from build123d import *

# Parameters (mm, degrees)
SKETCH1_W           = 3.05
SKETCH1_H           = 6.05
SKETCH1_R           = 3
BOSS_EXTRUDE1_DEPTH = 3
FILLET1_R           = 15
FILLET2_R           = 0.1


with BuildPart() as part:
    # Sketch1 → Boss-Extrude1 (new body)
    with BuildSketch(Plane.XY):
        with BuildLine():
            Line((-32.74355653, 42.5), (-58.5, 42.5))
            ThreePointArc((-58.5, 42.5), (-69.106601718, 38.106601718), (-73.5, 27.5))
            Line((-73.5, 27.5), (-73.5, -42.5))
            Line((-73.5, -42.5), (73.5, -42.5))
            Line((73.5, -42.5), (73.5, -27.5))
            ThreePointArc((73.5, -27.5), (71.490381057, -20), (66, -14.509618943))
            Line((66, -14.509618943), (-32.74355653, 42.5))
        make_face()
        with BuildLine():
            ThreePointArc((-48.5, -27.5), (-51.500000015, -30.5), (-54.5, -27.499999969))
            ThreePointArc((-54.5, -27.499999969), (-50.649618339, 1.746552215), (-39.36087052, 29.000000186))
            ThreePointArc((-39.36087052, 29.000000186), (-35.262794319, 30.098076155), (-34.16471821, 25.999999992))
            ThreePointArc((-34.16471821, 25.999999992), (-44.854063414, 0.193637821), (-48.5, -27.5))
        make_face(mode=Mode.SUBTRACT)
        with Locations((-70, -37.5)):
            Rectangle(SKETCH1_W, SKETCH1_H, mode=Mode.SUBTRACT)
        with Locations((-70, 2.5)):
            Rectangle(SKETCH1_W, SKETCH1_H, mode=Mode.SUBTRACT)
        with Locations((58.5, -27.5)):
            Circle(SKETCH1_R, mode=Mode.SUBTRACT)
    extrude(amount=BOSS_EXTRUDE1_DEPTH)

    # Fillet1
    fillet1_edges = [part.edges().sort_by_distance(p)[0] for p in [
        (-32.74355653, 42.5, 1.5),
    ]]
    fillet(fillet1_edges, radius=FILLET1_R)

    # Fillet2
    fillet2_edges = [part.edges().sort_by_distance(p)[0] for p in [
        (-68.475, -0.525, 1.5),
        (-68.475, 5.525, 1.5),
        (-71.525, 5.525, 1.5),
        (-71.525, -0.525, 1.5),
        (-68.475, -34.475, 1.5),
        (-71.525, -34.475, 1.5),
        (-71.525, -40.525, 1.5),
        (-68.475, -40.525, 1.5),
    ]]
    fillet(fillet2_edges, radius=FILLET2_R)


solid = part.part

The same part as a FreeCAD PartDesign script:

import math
import FreeCAD as App
import Part
import Sketcher
Q = App.Units.Quantity


def edges_at(feature, points):
    """Names of the edges that pass closest to the given points."""
    edges = feature.Shape.Edges
    near = lambda p: min(range(len(edges)), key=lambda i: edges[i].distToShape(Part.Vertex(*p))[0])
    return sorted({f"Edge{near(p) + 1}" for p in points})

doc = App.newDocument("Part")
body = doc.addObject("PartDesign::Body", "Body")

sketch1 = doc.addObject("Sketcher::SketchObject", "Sketch")
body.addObject(sketch1)
sketch1.AttachmentSupport = (doc.XY_Plane, [""])
sketch1.MapMode = "FlatFace"
sketch1.addGeometry(Part.LineSegment(App.Vector(-32.743557, 42.5, 0), App.Vector(-58.5, 42.5, 0)), False)
sketch1.addGeometry(Part.ArcOfCircle(Part.Circle(App.Vector(-58.5, 27.5, 0), App.Vector(0, 0, 1), 15), math.radians(90), math.radians(180)), False)
sketch1.addGeometry(Part.LineSegment(App.Vector(-73.5, 27.5, 0), App.Vector(-73.5, -42.5, 0)), False)
sketch1.addGeometry(Part.LineSegment(App.Vector(-73.5, -42.5, 0), App.Vector(73.5, -42.5, 0)), False)
sketch1.addGeometry(Part.LineSegment(App.Vector(73.5, -42.5, 0), App.Vector(73.5, -27.5, 0)), False)
sketch1.addGeometry(Part.ArcOfCircle(Part.Circle(App.Vector(58.5, -27.5, 0), App.Vector(0, 0, 1), 15), math.radians(0), math.radians(60)), False)
sketch1.addGeometry(Part.LineSegment(App.Vector(66, -14.509619, 0), App.Vector(-32.743557, 42.5, 0)), False)
sketch1.addGeometry(Part.LineSegment(App.Vector(-68.475, -40.525, 0), App.Vector(-71.525, -40.525, 0)), False)
sketch1.addGeometry(Part.LineSegment(App.Vector(-71.525, -40.525, 0), App.Vector(-71.525, -34.475, 0)), False)
sketch1.addGeometry(Part.LineSegment(App.Vector(-71.525, -34.475, 0), App.Vector(-68.475, -34.475, 0)), False)
sketch1.addGeometry(Part.LineSegment(App.Vector(-68.475, -34.475, 0), App.Vector(-68.475, -40.525, 0)), False)
sketch1.addGeometry(Part.Circle(App.Vector(58.5, -27.5, 0), App.Vector(0, 0, 1), 3), False)
sketch1.addGeometry(Part.LineSegment(App.Vector(-68.475, -0.525, 0), App.Vector(-71.525, -0.525, 0)), False)
sketch1.addGeometry(Part.LineSegment(App.Vector(-71.525, -0.525, 0), App.Vector(-71.525, 5.525, 0)), False)
sketch1.addGeometry(Part.LineSegment(App.Vector(-71.525, 5.525, 0), App.Vector(-68.475, 5.525, 0)), False)
sketch1.addGeometry(Part.LineSegment(App.Vector(-68.475, 5.525, 0), App.Vector(-68.475, -0.525, 0)), False)
sketch1.addGeometry(Part.ArcOfCircle(Part.Circle(App.Vector(58.5, -27.5, 0), App.Vector(0, 0, 1), 107), math.radians(150), math.radians(180)), False)
sketch1.addGeometry(Part.ArcOfCircle(Part.Circle(App.Vector(-51.5, -27.5, 0), App.Vector(0, 0, 1), 3), math.radians(179.999999), math.radians(360)), False)
sketch1.addGeometry(Part.ArcOfCircle(Part.Circle(App.Vector(58.5, -27.5, 0), App.Vector(0, 0, 1), 113), math.radians(150), math.radians(180)), False)
sketch1.addGeometry(Part.ArcOfCircle(Part.Circle(App.Vector(-36.762794, 27.5, 0), App.Vector(0, 0, 1), 3), math.radians(-30), math.radians(149.999996)), False)
sketch1.addConstraint(Sketcher.Constraint("Tangent", 0, 2, 1, 1))
sketch1.addConstraint(Sketcher.Constraint("Tangent", 1, 2, 2, 1))
sketch1.addConstraint(Sketcher.Constraint("Coincident", 2, 2, 3, 1))
sketch1.addConstraint(Sketcher.Constraint("Coincident", 3, 2, 4, 1))
sketch1.addConstraint(Sketcher.Constraint("Tangent", 4, 2, 5, 1))
sketch1.addConstraint(Sketcher.Constraint("Tangent", 5, 2, 6, 1))
sketch1.addConstraint(Sketcher.Constraint("Coincident", 6, 2, 0, 1))
sketch1.addConstraint(Sketcher.Constraint("Coincident", 7, 2, 8, 1))
sketch1.addConstraint(Sketcher.Constraint("Coincident", 8, 2, 9, 1))
sketch1.addConstraint(Sketcher.Constraint("Coincident", 9, 2, 10, 1))
sketch1.addConstraint(Sketcher.Constraint("Coincident", 10, 2, 7, 1))
sketch1.addConstraint(Sketcher.Constraint("Coincident", 12, 2, 13, 1))
sketch1.addConstraint(Sketcher.Constraint("Coincident", 13, 2, 14, 1))
sketch1.addConstraint(Sketcher.Constraint("Coincident", 14, 2, 15, 1))
sketch1.addConstraint(Sketcher.Constraint("Coincident", 15, 2, 12, 1))
sketch1.addConstraint(Sketcher.Constraint("Tangent", 16, 2, 17, 2))
sketch1.addConstraint(Sketcher.Constraint("Tangent", 17, 1, 18, 2))
sketch1.addConstraint(Sketcher.Constraint("Tangent", 18, 1, 19, 2))
sketch1.addConstraint(Sketcher.Constraint("Tangent", 19, 1, 16, 1))
sketch1.addConstraint(Sketcher.Constraint("Horizontal", 0))
sketch1.addConstraint(Sketcher.Constraint("Vertical", 2))
sketch1.addConstraint(Sketcher.Constraint("Horizontal", 3))
sketch1.addConstraint(Sketcher.Constraint("Vertical", 4))
sketch1.addConstraint(Sketcher.Constraint("Horizontal", 7))
sketch1.addConstraint(Sketcher.Constraint("Vertical", 8))
sketch1.addConstraint(Sketcher.Constraint("Horizontal", 9))
sketch1.addConstraint(Sketcher.Constraint("Vertical", 10))
sketch1.addConstraint(Sketcher.Constraint("Horizontal", 12))
sketch1.addConstraint(Sketcher.Constraint("Vertical", 13))
sketch1.addConstraint(Sketcher.Constraint("Horizontal", 14))
sketch1.addConstraint(Sketcher.Constraint("Vertical", 15))
sketch1.addConstraint(Sketcher.Constraint("Coincident", 11, 3, 5, 3))
sketch1.addConstraint(Sketcher.Constraint("Coincident", 16, 3, 5, 3))
sketch1.addConstraint(Sketcher.Constraint("Coincident", 18, 3, 5, 3))
sketch1.addConstraint(Sketcher.Constraint("Equal", 1, 5))
sketch1.addConstraint(Sketcher.Constraint("Equal", 11, 17))
sketch1.addConstraint(Sketcher.Constraint("Symmetric", 1, 3, 5, 3, -1, 1))
sketch1.addConstraint(Sketcher.Constraint("Horizontal", 16, 3, 17, 3))
sketch1.addConstraint(Sketcher.Constraint("Horizontal", 1, 3, 19, 3))
sketch1.addConstraint(Sketcher.Constraint("Vertical", 8, 2, 12, 2))
sketch1.addConstraint(Sketcher.Constraint("Vertical", 10, 2, 14, 2))
sketch1.addConstraint(Sketcher.Constraint("Equal", 10, 13))
sketch1.addConstraint(Sketcher.Constraint("Diameter", 11, Q("6 mm")))
sketch1.addConstraint(Sketcher.Constraint("Radius", 1, Q("15 mm")))
sketch1.addConstraint(Sketcher.Constraint("Radius", 16, Q("107 mm")))
sketch1.addConstraint(Sketcher.Constraint("DistanceX", 3, 1, 3, 2, Q("147 mm")))
sketch1.addConstraint(Sketcher.Constraint("DistanceY", 2, 2, 2, 1, Q("70 mm")))
sketch1.addConstraint(Sketcher.Constraint("DistanceY", 4, 1, 4, 2, Q("15 mm")))
sketch1.addConstraint(Sketcher.Constraint("Angle", 6, Q("150 deg")))
sketch1.addConstraint(Sketcher.Constraint("DistanceX", 7, 2, 7, 1, Q("3.05 mm")))
sketch1.addConstraint(Sketcher.Constraint("DistanceY", 8, 1, 8, 2, Q("6.05 mm")))
sketch1.addConstraint(Sketcher.Constraint("DistanceY", 8, 2, 12, 2, Q("33.95 mm")))
sketch1.addConstraint(Sketcher.Constraint("DistanceX", 7, 2, -1, 1, Q("71.525 mm")))
sketch1.addConstraint(Sketcher.Constraint("DistanceY", 7, 2, -1, 1, Q("40.525 mm")))
pad1 = doc.addObject("PartDesign::Pad", "Pad")
body.addObject(pad1)
pad1.Profile = sketch1
pad1.Length = 3
doc.recompute()

fillet = doc.addObject("PartDesign::Fillet", "Fillet")
body.addObject(fillet)
fillet.Base = (pad1, edges_at(pad1, [(-32.744, 42.5, 1.5)]))
fillet.Radius = 15
doc.recompute()

fillet2 = doc.addObject("PartDesign::Fillet", "Fillet001")
body.addObject(fillet2)
fillet2.Base = (fillet, edges_at(fillet, [
    (-68.475, -0.525, 1.5),
    (-68.475, 5.525, 1.5),
    (-71.525, 5.525, 1.5),
    (-71.525, -0.525, 1.5),
    (-68.475, -34.475, 1.5),
    (-71.525, -34.475, 1.5),
    (-71.525, -40.525, 1.5),
    (-68.475, -40.525, 1.5),
]))
fillet2.Radius = 0.1

doc.recompute()
